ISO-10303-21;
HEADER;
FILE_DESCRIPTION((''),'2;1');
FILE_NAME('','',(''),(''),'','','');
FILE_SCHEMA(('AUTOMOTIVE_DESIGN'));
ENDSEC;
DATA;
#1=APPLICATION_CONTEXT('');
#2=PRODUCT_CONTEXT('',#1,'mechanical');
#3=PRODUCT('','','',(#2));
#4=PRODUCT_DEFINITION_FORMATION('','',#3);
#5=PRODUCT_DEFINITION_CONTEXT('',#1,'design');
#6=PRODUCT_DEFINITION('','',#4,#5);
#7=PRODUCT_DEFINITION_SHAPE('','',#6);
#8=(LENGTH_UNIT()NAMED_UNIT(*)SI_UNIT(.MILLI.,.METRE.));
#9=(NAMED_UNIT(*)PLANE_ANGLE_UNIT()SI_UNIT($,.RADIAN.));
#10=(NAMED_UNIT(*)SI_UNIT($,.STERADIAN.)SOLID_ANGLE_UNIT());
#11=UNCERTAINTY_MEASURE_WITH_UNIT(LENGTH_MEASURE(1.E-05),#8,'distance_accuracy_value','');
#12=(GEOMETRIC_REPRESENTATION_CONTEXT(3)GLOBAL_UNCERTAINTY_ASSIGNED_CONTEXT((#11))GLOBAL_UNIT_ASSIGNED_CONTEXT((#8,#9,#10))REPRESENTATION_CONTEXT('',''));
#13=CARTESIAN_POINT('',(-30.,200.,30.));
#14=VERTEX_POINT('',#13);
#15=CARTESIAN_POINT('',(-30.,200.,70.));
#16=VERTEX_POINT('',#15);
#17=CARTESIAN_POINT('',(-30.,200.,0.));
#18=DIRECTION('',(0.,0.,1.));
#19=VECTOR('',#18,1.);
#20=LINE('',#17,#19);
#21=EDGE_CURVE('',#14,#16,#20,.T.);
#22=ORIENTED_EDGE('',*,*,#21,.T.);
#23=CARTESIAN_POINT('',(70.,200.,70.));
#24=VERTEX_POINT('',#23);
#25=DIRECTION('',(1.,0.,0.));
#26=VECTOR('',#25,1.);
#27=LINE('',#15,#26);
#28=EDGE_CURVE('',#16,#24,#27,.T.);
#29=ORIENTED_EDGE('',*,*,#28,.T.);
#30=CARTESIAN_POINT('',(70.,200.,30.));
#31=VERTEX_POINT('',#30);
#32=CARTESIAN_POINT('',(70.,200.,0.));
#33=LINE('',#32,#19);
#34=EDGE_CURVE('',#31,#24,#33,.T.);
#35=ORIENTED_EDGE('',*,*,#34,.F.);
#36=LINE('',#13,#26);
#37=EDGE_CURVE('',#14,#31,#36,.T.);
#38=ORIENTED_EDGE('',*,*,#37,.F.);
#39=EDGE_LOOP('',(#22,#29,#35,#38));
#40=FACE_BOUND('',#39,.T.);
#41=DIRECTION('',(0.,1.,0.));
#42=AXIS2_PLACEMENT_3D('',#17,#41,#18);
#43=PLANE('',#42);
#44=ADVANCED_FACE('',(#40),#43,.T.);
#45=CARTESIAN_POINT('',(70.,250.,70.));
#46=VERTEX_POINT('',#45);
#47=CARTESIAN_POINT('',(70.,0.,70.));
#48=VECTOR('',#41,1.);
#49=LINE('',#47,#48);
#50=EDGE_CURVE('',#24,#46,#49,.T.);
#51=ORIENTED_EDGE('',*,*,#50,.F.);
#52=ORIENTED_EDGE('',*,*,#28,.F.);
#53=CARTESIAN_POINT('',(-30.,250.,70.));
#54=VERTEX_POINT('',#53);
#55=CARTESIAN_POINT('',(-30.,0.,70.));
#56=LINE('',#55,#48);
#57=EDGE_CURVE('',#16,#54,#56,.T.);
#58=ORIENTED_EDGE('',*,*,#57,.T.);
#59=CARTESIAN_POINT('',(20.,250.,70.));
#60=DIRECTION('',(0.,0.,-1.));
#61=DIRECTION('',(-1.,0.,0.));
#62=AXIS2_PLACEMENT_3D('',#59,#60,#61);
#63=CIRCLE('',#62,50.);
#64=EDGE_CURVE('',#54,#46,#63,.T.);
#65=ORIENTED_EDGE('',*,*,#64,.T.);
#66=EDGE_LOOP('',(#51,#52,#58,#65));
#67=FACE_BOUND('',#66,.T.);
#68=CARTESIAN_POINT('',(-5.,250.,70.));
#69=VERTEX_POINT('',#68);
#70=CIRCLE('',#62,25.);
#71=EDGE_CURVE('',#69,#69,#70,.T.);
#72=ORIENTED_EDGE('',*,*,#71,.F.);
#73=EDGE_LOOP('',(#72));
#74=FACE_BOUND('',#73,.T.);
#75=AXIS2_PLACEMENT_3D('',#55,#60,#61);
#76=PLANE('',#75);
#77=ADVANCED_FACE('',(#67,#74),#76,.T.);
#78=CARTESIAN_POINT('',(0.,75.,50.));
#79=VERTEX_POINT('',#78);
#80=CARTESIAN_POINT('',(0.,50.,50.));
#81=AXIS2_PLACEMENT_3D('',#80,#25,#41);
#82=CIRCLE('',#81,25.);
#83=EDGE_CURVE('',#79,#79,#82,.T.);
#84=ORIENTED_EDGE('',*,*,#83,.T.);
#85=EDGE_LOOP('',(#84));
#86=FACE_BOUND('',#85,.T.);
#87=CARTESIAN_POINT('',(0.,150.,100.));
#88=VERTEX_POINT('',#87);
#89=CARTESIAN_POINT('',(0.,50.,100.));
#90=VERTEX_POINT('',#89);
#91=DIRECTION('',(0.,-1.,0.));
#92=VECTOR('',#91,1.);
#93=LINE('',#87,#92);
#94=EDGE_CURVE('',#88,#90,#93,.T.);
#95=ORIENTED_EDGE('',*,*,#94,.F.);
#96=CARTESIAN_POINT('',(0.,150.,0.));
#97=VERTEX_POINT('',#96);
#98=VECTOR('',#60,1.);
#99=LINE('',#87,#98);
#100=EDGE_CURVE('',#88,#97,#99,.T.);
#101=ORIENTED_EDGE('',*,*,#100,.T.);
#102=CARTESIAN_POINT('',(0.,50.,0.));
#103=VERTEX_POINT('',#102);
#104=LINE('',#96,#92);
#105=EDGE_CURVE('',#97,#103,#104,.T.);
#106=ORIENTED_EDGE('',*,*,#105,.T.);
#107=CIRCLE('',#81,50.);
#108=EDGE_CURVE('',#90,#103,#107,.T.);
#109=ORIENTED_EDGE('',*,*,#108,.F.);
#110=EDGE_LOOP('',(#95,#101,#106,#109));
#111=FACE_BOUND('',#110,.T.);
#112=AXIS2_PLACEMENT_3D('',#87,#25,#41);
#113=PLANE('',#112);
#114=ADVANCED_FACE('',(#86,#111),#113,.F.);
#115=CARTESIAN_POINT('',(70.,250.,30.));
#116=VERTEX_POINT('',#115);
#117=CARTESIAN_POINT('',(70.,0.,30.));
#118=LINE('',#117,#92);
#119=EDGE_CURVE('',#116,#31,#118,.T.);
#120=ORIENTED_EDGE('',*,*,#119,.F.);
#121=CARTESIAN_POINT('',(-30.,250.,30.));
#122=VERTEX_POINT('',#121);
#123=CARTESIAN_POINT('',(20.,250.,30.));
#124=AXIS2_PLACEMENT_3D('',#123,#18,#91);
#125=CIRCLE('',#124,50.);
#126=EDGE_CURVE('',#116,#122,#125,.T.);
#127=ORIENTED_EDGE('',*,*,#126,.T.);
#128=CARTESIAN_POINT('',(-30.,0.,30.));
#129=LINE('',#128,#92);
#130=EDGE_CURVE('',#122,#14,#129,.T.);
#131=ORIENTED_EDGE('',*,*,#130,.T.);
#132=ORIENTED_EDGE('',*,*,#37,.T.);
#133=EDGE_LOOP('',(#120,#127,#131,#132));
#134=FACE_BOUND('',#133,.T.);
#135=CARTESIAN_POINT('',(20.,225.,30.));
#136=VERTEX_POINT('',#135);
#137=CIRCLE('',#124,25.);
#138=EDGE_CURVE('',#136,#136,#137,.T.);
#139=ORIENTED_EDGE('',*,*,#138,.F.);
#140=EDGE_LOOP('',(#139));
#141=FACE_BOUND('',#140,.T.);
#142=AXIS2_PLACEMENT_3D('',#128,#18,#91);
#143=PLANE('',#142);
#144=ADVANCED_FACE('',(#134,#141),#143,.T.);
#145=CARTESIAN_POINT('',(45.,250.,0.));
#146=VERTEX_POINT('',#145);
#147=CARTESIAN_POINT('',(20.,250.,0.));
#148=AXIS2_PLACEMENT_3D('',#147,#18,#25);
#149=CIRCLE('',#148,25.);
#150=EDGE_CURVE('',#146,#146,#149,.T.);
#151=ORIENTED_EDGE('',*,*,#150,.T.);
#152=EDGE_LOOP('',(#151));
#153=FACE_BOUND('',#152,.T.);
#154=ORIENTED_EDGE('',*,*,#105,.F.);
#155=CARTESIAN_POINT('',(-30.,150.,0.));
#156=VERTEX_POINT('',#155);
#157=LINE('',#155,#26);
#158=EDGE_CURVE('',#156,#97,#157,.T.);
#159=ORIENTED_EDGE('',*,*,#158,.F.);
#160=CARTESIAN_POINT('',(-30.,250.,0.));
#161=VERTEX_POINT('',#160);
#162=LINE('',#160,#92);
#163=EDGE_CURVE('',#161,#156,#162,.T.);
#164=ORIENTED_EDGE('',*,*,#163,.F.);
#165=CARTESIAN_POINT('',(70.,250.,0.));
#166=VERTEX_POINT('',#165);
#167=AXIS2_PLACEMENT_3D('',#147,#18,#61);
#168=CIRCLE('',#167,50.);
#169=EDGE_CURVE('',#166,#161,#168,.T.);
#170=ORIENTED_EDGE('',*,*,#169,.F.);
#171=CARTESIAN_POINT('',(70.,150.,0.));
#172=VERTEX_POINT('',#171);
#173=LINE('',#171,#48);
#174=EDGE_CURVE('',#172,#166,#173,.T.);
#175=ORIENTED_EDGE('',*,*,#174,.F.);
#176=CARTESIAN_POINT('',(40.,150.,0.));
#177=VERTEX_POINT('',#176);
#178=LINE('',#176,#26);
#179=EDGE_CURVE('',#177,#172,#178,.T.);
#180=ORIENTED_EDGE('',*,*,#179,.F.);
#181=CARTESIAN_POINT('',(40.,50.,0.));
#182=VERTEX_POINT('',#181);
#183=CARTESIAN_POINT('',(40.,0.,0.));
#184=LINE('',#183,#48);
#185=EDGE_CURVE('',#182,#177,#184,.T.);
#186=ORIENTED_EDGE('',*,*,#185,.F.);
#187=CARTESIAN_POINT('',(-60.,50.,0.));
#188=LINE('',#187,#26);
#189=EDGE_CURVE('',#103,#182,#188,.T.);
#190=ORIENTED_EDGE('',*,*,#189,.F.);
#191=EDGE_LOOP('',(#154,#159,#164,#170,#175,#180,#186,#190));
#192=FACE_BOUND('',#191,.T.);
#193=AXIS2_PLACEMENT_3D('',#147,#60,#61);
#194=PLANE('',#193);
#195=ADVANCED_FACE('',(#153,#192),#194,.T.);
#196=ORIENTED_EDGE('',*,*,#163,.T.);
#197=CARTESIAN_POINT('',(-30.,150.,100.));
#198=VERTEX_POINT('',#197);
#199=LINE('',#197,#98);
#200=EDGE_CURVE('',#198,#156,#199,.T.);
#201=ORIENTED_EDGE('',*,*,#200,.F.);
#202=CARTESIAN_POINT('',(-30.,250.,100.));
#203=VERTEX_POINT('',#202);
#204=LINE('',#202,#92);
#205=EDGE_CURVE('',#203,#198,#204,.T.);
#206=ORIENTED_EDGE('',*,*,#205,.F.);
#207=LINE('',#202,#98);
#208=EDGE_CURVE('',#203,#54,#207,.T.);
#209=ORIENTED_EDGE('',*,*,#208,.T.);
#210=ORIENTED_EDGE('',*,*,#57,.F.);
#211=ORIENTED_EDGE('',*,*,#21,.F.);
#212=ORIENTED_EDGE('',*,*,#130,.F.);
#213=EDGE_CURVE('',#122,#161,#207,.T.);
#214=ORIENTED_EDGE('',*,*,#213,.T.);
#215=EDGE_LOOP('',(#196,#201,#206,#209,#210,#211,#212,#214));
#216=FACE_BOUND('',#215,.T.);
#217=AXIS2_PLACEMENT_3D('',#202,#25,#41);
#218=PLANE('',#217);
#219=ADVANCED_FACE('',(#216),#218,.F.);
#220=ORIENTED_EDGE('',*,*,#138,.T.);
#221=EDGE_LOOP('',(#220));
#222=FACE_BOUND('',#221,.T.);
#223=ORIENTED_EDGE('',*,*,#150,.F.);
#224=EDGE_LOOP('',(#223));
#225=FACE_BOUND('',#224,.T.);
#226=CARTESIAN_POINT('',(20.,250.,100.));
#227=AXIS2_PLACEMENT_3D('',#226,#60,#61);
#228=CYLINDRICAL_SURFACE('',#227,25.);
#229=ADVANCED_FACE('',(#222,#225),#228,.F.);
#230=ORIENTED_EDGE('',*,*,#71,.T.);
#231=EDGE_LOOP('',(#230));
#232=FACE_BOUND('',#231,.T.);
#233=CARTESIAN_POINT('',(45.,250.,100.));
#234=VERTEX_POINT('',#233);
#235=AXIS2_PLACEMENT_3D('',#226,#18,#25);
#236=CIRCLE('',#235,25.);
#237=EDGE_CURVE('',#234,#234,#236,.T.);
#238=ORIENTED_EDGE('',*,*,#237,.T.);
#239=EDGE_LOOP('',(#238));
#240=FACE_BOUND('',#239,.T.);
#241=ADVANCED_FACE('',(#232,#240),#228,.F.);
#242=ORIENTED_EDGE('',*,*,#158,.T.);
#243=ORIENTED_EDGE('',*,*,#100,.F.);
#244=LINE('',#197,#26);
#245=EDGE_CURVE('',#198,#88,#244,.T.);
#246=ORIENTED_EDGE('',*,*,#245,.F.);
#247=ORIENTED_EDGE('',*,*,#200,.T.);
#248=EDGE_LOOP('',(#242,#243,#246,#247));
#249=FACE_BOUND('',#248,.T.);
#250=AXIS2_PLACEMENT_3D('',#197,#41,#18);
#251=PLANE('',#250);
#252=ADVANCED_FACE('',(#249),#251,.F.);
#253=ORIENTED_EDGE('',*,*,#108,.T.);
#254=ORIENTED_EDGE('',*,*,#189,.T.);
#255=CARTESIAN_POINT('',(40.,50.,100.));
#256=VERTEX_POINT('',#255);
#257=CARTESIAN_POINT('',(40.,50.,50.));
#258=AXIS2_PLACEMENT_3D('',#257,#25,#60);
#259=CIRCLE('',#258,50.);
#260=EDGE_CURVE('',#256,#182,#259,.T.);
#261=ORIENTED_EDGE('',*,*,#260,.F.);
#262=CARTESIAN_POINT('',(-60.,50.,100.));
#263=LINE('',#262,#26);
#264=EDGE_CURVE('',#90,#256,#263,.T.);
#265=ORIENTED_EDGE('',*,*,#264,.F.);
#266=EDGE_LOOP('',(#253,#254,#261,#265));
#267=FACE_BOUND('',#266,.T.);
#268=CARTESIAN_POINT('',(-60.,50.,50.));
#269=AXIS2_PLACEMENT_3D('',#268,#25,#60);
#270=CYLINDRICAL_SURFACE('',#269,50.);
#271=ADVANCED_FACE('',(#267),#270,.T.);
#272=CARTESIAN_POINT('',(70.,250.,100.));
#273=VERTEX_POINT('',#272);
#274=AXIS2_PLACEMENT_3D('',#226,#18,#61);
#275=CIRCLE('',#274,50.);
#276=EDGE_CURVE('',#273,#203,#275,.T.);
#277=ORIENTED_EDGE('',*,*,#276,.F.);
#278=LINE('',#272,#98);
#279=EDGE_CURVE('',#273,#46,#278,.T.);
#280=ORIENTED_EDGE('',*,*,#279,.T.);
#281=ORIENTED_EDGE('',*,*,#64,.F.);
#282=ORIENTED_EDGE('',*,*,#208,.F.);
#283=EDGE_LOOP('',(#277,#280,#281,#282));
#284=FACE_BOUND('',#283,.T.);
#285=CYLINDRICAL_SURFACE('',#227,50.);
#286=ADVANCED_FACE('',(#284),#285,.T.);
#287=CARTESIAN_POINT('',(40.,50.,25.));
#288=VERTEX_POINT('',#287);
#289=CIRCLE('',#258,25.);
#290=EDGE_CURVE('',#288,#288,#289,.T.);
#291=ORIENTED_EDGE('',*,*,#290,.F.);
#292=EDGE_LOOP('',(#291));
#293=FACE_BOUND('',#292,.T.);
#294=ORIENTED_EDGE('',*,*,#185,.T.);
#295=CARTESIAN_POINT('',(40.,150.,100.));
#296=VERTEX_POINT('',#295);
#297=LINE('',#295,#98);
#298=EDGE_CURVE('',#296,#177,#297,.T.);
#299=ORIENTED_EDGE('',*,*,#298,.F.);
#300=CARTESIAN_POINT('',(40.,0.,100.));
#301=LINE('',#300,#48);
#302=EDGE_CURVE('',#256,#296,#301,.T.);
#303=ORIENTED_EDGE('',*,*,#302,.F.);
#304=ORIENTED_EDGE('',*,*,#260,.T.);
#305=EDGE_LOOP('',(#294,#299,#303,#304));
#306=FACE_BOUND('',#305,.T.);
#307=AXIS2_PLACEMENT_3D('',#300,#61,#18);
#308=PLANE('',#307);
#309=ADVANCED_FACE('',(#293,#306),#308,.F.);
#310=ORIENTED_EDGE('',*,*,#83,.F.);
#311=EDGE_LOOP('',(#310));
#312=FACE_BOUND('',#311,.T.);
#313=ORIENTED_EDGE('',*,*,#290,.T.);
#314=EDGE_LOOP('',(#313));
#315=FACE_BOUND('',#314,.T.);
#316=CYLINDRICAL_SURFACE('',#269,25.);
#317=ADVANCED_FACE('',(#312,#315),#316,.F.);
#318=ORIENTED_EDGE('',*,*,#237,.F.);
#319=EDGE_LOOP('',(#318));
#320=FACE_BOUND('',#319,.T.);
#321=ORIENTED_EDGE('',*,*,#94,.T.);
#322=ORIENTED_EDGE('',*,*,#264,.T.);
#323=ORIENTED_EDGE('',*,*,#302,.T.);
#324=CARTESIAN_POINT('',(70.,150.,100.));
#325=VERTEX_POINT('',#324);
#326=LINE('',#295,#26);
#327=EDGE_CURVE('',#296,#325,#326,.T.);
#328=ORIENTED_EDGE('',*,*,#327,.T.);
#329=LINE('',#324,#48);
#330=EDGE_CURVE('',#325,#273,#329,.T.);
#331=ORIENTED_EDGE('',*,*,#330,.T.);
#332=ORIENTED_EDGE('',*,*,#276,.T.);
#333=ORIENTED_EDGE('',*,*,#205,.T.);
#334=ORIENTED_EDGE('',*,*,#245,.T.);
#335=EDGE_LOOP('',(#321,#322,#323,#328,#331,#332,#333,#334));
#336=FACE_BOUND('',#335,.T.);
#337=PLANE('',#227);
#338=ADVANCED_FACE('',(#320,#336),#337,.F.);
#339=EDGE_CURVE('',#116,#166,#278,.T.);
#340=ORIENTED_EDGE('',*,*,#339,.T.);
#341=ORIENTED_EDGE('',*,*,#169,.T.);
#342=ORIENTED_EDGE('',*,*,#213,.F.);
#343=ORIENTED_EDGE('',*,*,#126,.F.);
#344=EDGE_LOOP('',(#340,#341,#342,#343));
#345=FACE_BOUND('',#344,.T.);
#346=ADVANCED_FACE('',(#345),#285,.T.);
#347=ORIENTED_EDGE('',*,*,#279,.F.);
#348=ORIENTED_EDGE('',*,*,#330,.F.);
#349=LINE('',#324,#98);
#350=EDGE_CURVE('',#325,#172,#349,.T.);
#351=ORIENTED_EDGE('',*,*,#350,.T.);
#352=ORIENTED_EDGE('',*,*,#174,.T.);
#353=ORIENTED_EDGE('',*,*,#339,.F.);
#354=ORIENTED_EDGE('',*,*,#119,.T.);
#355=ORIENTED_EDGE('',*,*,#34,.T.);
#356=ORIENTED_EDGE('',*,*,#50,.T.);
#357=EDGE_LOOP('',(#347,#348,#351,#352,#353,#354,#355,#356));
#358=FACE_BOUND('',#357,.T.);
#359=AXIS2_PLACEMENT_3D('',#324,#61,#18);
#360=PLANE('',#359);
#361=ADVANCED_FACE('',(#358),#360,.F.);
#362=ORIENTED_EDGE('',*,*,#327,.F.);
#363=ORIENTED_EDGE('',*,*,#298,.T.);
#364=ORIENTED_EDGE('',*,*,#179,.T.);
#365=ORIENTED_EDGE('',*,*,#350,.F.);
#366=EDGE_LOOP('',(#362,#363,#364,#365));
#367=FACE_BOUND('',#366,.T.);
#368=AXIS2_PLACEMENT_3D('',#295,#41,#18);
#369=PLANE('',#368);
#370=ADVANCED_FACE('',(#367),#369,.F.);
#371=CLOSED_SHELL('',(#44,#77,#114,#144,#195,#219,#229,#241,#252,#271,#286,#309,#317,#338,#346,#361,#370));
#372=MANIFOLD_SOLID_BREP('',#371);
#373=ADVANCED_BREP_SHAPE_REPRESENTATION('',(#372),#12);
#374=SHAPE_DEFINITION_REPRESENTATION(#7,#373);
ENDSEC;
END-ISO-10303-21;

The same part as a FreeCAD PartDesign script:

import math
import FreeCAD as App
import Part
import Sketcher

V = App.Vector

doc = App.newDocument("Part")
body = doc.addObject("PartDesign::Body", "Body")

sketch1 = body.newObject("Sketcher::SketchObject", "Sketch")
sketch1.AttachmentSupport = (doc.getObject("XY_Plane"), [""])
sketch1.MapMode = "FlatFace"
sketch1.addGeometry(Part.LineSegment(V(0, 0, 0), V(40, 0, 0)), False)
sketch1.addGeometry(Part.LineSegment(V(40, 0, 0), V(40, 150, 0)), False)
sketch1.addGeometry(Part.LineSegment(V(40, 150, 0), V(70, 150, 0)), False)
sketch1.addGeometry(Part.LineSegment(V(70, 150, 0), V(70, 250, 0)), False)
sketch1.addGeometry(Part.ArcOfCircle(Part.Circle(V(20, 250, 0), V(0, 0, 1), 50), math.radians(0), math.radians(180)), False)
sketch1.addGeometry(Part.LineSegment(V(-30, 250, 0), V(-30, 150, 0)), False)
sketch1.addGeometry(Part.LineSegment(V(-30, 150, 0), V(0, 150, 0)), False)
sketch1.addGeometry(Part.LineSegment(V(0, 150, 0), V(0, 0, 0)), False)
sketch1.addGeometry(Part.Circle(V(20, 250, 0), V(0, 0, 1), 25), False)
sketch1.addConstraint(Sketcher.Constraint("Coincident", 0, 2, 1, 1))
sketch1.addConstraint(Sketcher.Constraint("Coincident", 1, 2, 2, 1))
sketch1.addConstraint(Sketcher.Constraint("Coincident", 2, 2, 3, 1))
sketch1.addConstraint(Sketcher.Constraint("Tangent", 3, 2, 4, 1))
sketch1.addConstraint(Sketcher.Constraint("Tangent", 4, 2, 5, 1))
sketch1.addConstraint(Sketcher.Constraint("Coincident", 5, 2, 6, 1))
sketch1.addConstraint(Sketcher.Constraint("Coincident", 6, 2, 7, 1))
sketch1.addConstraint(Sketcher.Constraint("Coincident", 7, 2, 0, 1))
sketch1.addConstraint(Sketcher.Constraint("Horizontal", 0))
sketch1.addConstraint(Sketcher.Constraint("Vertical", 1))
sketch1.addConstraint(Sketcher.Constraint("Horizontal", 2))
sketch1.addConstraint(Sketcher.Constraint("Vertical", 3))
sketch1.addConstraint(Sketcher.Constraint("Vertical", 5))
sketch1.addConstraint(Sketcher.Constraint("Horizontal", 6))
sketch1.addConstraint(Sketcher.Constraint("Vertical", 7))
sketch1.addConstraint(Sketcher.Constraint("Coincident", 7, 2, -1, 1))
sketch1.addConstraint(Sketcher.Constraint("Coincident", 8, 3, 4, 3))
sketch1.addConstraint(Sketcher.Constraint("Horizontal", 2, 2, 5, 2))
sketch1.addConstraint(Sketcher.Constraint("Equal", 2, 6))
sketch1.addConstraint(Sketcher.Constraint("Diameter", 8, 50.0))
sketch1.addConstraint(Sketcher.Constraint("Radius", 4, 50.0))
sketch1.addConstraint(Sketcher.Constraint("DistanceX", 0, 1, 0, 2, 40.0))
sketch1.addConstraint(Sketcher.Constraint("DistanceY", 1, 1, 1, 2, 150.0))
sketch1.addConstraint(Sketcher.Constraint("DistanceY", 3, 1, 3, 2, 100.0))
pad1 = body.newObject("PartDesign::Pad", "Pad")
pad1.Profile = sketch1
pad1.Length = 100

sketch2 = body.newObject("Sketcher::SketchObject", "Sketch001")
sketch2.AttachmentSupport = (doc.getObject("YZ_Plane"), [""])
sketch2.MapMode = "FlatFace"
sketch2.AttachmentOffset = App.Placement(V(0, 0, 40), App.Rotation())
sketch2.addGeometry(Part.ArcOfCircle(Part.Circle(V(50, 50, 0), V(0, 0, 1), 50), math.radians(90), math.radians(180)), False)
sketch2.addGeometry(Part.LineSegment(V(50, 100, 0), V(0, 100, 0)), False)
sketch2.addGeometry(Part.LineSegment(V(0, 100, 0), V(0, 50, 0)), False)
sketch2.addGeometry(Part.ArcOfCircle(Part.Circle(V(50, 50, 0), V(0, 0, 1), 50), math.radians(-180), math.radians(-90)), False)
sketch2.addGeometry(Part.LineSegment(V(0, 50, 0), V(0, 0, 0)), False)
sketch2.addGeometry(Part.LineSegment(V(0, 0, 0), V(50, 0, 0)), False)
sketch2.addConstraint(Sketcher.Constraint("Tangent", 0, 1, 1, 1))
sketch2.addConstraint(Sketcher.Constraint("Coincident", 1, 2, 2, 1))
sketch2.addConstraint(Sketcher.Constraint("Tangent", 2, 2, 0, 2))
sketch2.addConstraint(Sketcher.Constraint("Tangent", 3, 1, 4, 1))
sketch2.addConstraint(Sketcher.Constraint("Coincident", 4, 2, 5, 1))
sketch2.addConstraint(Sketcher.Constraint("Tangent", 5, 2, 3, 2))
sketch2.addConstraint(Sketcher.Constraint("Horizontal", 1))
sketch2.addConstraint(Sketcher.Constraint("Vertical", 2))
sketch2.addConstraint(Sketcher.Constraint("Vertical", 4))
sketch2.addConstraint(Sketcher.Constraint("Horizontal", 5))
sketch2.addConstraint(Sketcher.Constraint("Coincident", 4, 2, -1, 1))
sketch2.addConstraint(Sketcher.Constraint("Coincident", 3, 3, 0, 3))
sketch2.addConstraint(Sketcher.Constraint("Equal", 0, 3))
sketch2.addConstraint(Sketcher.Constraint("Radius", 0, 50.0))
pocket1 = body.newObject("PartDesign::Pocket", "Pocket")
pocket1.Profile = sketch2
pocket1.Length = 100

sketch3 = body.newObject("Sketcher::SketchObject", "Sketch002")
sketch3.AttachmentSupport = (doc.getObject("YZ_Plane"), [""])
sketch3.MapMode = "FlatFace"
sketch3.AttachmentOffset = App.Placement(V(0, 0, 40), App.Rotation())
sketch3.addGeometry(Part.Circle(V(50, 50, 0), V(0, 0, 1), 25), False)
sketch3.addConstraint(Sketcher.Constraint("Diameter", 0, 50.0))
sketch3.addConstraint(Sketcher.Constraint("DistanceX", -1, 1, 0, 3, 50.0))
sketch3.addConstraint(Sketcher.Constraint("DistanceY", -1, 1, 0, 3, 50.0))
pocket2 = body.newObject("PartDesign::Pocket", "Pocket001")
pocket2.Profile = sketch3
pocket2.Length = 100

sketch4 = body.newObject("Sketcher::SketchObject", "Sketch003")
sketch4.AttachmentSupport = (doc.getObject("YZ_Plane"), [""])
sketch4.MapMode = "FlatFace"
sketch4.AttachmentOffset = App.Placement(V(0, 0, 70), App.Rotation())
sketch4.addGeometry(Part.LineSegment(V(300, 70, 0), V(200, 70, 0)), False)
sketch4.addGeometry(Part.LineSegment(V(200, 70, 0), V(200, 30, 0)), False)
sketch4.addGeometry(Part.LineSegment(V(200, 30, 0), V(300, 30, 0)), False)
sketch4.addGeometry(Part.LineSegment(V(300, 30, 0), V(300, 70, 0)), False)
sketch4.addConstraint(Sketcher.Constraint("Coincident", 0, 2, 1, 1))
sketch4.addConstraint(Sketcher.Constraint("Coincident", 1, 2, 2, 1))
sketch4.addConstraint(Sketcher.Constraint("Coincident", 2, 2, 3, 1))
sketch4.addConstraint(Sketcher.Constraint("Coincident", 3, 2, 0, 1))
sketch4.addConstraint(Sketcher.Constraint("Horizontal", 0))
sketch4.addConstraint(Sketcher.Constraint("Vertical", 1))
sketch4.addConstraint(Sketcher.Constraint("Horizontal", 2))
sketch4.addConstraint(Sketcher.Constraint("Vertical", 3))
sketch4.addConstraint(Sketcher.Constraint("DistanceX", 0, 2, 0, 1, 100.0))
sketch4.addConstraint(Sketcher.Constraint("DistanceY", 1, 2, 1, 1, 40.0))
sketch4.addConstraint(Sketcher.Constraint("DistanceX", -1, 1, 0, 2, 200.0))
sketch4.addConstraint(Sketcher.Constraint("DistanceY", -1, 1, 0, 2, 70.0))
pocket3 = body.newObject("PartDesign::Pocket", "Pocket002")
pocket3.Profile = sketch4
pocket3.Type = "ThroughAll"

doc.recompute()
